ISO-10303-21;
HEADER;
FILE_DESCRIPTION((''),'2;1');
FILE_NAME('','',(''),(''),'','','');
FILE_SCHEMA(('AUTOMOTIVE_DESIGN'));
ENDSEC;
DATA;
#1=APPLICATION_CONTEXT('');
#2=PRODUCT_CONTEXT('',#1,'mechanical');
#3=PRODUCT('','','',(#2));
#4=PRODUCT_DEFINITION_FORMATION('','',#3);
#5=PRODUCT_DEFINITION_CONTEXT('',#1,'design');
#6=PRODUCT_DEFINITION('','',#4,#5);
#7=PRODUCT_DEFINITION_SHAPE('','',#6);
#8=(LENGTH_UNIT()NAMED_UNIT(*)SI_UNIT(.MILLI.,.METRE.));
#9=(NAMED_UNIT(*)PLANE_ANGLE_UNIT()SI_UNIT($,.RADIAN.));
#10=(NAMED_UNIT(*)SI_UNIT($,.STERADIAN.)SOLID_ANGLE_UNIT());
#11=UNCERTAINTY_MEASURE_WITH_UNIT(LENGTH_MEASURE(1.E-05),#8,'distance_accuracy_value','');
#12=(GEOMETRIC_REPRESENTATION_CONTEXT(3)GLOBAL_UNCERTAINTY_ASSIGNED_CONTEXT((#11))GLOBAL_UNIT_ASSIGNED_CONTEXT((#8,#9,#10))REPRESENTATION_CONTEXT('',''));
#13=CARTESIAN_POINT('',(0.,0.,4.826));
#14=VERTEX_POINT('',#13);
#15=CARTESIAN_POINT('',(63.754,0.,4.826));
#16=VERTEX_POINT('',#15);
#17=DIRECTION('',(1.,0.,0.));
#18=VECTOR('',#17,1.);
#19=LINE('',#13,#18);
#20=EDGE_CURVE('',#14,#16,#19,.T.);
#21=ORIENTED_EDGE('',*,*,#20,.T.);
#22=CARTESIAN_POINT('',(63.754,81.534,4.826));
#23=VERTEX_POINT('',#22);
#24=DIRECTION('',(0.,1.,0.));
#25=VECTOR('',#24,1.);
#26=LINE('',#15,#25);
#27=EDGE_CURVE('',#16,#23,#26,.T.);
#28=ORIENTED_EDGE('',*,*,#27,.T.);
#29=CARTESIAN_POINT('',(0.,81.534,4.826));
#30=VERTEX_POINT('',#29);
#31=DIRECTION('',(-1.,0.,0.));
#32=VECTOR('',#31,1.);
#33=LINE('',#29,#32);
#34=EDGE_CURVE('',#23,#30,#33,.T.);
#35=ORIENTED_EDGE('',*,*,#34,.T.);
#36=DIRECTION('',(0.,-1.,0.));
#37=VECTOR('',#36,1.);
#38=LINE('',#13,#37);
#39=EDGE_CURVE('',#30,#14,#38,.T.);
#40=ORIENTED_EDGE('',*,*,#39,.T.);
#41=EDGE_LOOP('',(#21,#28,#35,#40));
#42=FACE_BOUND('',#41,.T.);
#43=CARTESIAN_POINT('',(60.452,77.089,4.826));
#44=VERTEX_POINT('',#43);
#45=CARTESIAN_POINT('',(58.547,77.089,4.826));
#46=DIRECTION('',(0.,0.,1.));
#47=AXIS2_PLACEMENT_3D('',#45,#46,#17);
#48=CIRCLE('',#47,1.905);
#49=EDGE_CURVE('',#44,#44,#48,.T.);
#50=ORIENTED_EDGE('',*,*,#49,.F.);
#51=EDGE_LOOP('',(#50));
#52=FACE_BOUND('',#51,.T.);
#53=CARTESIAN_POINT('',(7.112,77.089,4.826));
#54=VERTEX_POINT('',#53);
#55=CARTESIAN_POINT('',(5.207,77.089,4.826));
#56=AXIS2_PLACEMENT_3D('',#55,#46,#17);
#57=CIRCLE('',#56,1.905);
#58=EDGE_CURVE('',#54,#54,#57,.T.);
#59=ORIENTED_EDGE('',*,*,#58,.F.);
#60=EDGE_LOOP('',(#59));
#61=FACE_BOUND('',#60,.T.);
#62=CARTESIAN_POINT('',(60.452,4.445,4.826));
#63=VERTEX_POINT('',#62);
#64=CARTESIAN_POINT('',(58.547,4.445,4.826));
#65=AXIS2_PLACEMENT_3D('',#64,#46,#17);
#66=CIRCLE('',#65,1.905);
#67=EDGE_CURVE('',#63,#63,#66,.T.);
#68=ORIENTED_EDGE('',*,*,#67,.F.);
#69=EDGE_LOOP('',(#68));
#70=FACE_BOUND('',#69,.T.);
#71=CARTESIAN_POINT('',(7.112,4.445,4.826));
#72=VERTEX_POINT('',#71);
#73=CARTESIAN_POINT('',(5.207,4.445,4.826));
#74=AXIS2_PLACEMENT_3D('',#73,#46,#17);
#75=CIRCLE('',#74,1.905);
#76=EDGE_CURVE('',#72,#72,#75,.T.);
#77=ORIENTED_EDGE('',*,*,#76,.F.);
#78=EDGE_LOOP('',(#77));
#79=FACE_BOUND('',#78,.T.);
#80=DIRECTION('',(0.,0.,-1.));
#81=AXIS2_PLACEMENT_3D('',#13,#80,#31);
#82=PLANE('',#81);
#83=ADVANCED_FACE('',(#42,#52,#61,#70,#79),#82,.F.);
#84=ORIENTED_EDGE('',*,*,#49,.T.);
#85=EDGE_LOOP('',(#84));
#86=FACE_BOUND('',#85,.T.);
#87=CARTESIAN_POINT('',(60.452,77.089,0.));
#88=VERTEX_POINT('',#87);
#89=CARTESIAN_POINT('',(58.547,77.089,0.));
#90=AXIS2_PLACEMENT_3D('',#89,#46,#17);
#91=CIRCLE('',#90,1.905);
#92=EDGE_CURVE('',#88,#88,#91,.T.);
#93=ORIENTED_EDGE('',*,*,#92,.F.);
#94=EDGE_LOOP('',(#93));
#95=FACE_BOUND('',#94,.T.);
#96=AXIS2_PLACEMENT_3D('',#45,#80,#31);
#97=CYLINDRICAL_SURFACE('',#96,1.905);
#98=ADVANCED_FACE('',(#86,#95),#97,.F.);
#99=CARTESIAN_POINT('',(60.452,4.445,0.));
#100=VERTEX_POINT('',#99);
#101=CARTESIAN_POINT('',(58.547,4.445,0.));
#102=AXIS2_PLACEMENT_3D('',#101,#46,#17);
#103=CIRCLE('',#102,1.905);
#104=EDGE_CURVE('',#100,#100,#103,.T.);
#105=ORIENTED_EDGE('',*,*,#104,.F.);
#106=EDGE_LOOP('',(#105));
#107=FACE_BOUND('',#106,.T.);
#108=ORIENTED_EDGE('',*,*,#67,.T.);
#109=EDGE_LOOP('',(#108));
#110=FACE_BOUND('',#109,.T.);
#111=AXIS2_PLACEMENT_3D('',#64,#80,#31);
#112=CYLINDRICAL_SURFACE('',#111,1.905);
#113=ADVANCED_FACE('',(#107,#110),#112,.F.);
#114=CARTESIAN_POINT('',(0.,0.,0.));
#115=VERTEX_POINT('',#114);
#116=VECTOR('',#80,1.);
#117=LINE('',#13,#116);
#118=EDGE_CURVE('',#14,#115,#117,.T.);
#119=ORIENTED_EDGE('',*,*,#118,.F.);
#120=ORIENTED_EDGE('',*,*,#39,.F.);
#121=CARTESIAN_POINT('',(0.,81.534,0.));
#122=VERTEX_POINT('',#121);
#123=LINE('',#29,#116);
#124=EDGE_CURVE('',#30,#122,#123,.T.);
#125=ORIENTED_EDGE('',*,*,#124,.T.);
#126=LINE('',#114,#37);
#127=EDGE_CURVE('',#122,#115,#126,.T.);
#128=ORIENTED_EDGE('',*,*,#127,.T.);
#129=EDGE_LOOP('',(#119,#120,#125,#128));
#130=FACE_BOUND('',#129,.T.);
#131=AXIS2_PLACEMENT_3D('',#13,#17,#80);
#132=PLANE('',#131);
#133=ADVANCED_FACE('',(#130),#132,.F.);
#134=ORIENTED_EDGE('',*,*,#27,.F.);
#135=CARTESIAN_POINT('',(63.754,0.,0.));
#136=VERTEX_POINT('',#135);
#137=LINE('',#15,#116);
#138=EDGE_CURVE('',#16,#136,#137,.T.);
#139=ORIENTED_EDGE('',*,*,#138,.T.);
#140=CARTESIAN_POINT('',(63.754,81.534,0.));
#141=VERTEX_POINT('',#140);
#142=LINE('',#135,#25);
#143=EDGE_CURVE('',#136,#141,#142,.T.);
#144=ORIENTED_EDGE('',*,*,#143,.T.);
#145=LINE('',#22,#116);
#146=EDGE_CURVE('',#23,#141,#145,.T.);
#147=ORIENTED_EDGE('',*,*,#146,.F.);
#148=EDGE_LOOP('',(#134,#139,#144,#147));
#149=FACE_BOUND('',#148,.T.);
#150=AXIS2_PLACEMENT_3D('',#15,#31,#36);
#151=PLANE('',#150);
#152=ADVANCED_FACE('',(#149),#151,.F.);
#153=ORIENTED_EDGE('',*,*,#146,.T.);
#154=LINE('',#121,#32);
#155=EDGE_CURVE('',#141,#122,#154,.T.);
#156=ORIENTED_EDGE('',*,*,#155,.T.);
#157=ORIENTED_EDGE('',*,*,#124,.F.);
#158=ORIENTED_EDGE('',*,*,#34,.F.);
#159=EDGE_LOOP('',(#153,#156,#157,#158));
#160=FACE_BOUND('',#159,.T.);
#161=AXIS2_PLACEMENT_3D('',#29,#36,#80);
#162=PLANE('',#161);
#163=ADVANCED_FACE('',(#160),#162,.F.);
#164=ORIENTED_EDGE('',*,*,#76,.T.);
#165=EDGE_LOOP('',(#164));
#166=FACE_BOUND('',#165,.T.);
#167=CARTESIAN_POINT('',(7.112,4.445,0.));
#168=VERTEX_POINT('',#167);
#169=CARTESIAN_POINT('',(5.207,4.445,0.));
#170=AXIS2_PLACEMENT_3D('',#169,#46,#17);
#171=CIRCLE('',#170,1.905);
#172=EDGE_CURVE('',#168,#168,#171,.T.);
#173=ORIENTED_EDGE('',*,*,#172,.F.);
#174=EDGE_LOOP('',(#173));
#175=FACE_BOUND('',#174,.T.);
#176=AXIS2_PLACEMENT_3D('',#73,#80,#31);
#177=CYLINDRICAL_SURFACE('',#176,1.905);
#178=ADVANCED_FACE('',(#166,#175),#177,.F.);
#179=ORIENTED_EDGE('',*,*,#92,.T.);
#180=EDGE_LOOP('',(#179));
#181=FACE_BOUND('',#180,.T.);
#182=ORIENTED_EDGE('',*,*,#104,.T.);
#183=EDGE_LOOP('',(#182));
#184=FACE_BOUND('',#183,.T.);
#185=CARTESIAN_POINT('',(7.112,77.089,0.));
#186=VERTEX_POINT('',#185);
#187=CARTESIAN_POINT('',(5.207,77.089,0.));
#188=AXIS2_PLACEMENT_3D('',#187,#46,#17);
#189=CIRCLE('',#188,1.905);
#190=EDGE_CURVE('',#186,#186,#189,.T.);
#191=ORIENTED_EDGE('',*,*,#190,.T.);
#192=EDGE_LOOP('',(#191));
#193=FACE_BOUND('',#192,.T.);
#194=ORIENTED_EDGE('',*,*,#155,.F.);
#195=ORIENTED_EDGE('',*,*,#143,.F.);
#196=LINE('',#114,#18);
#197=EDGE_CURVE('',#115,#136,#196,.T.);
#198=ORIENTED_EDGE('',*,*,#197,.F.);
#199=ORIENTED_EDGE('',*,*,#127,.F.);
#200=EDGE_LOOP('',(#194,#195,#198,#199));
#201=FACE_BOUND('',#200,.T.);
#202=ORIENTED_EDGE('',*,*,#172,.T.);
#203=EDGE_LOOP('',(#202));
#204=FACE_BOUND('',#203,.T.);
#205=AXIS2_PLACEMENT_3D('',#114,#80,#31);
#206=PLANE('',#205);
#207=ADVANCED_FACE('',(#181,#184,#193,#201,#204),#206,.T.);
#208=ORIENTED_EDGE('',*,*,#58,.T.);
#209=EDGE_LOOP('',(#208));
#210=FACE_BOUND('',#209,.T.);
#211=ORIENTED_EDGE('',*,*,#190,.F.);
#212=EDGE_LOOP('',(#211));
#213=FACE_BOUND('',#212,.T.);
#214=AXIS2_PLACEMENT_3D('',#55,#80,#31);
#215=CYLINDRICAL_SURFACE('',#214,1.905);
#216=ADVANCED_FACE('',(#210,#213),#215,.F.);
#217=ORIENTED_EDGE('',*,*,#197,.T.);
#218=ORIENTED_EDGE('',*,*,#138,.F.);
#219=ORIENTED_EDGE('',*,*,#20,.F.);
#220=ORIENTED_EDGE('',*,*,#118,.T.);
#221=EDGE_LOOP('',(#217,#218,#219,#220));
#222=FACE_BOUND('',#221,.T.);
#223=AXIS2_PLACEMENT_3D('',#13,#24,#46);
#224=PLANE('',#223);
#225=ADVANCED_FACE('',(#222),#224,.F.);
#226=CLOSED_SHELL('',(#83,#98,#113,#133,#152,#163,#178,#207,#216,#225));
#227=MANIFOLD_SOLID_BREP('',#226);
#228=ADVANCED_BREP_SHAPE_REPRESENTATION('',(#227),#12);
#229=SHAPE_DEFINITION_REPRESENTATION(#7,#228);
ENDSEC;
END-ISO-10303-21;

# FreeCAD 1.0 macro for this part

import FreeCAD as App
import Part
import Sketcher
from FreeCAD import Vector
Q = App.Units.Quantity

doc = App.newDocument("Part")
params = doc.addObject("Spreadsheet::Sheet", "Params")
for row, (alias, value) in enumerate([
    ("sketch1_diameter", "0.15 in"),
    ("sketch1_width", "2.51 in"),
    ("sketch1_height", "3.21 in"),
    ("pad1_length", "0.19 in"),
], start=1):
    params.set(f"A{row}", alias)
    params.set(f"B{row}", "=" + value)
    params.setAlias(f"B{row}", alias)

body = doc.addObject("PartDesign::Body", "Body")

# Sketch on XY plane
sketch1 = body.newObject("Sketcher::SketchObject", "Sketch")
sketch1.AttachmentSupport = (doc.getObject("XY_Plane"), [""])
sketch1.MapMode = "FlatFace"
sketch1.addGeometry([
    Part.LineSegment(Vector(0, 81.5, 0), Vector(0, 0, 0)),  # 0
    Part.LineSegment(Vector(0, 0, 0), Vector(63.8, 0, 0)),  # 1
    Part.LineSegment(Vector(63.8, 0, 0), Vector(63.8, 81.5, 0)),  # 2
    Part.LineSegment(Vector(63.8, 81.5, 0), Vector(0, 81.5, 0)),  # 3
    Part.Circle(Vector(5.2, 4.4, 0), Vector(0, 0, 1), 1.9),  # 4
    Part.Circle(Vector(58.5, 4.4, 0), Vector(0, 0, 1), 1.9),  # 5
    Part.Circle(Vector(5.2, 77.1, 0), Vector(0, 0, 1), 1.9),  # 6
    Part.Circle(Vector(58.5, 77.1, 0), Vector(0, 0, 1), 1.9),  # 7
], False)
sketch1.addConstraint([
    Sketcher.Constraint("Coincident", 0, 2, 1, 1),
    Sketcher.Constraint("Coincident", 1, 2, 2, 1),
    Sketcher.Constraint("Coincident", 2, 2, 3, 1),
    Sketcher.Constraint("Coincident", 3, 2, 0, 1),
    Sketcher.Constraint("Vertical", 0),
    Sketcher.Constraint("Horizontal", 1),
    Sketcher.Constraint("Vertical", 2),
    Sketcher.Constraint("Horizontal", 3),
    Sketcher.Constraint("Coincident", 0, 2, -1, 1),
    Sketcher.Constraint("Equal", 4, 5),
    Sketcher.Constraint("Equal", 5, 6),
    Sketcher.Constraint("Equal", 6, 7),
    Sketcher.Constraint("Horizontal", 4, 3, 5, 3),
    Sketcher.Constraint("Horizontal", 6, 3, 7, 3),
    Sketcher.Constraint("Vertical", 4, 3, 6, 3),
    Sketcher.Constraint("Vertical", 5, 3, 7, 3),
    Sketcher.Constraint("Diameter", 4, Q("0.15 in")),
    Sketcher.Constraint("DistanceX", 1, 1, 1, 2, Q("2.51 in")),
    Sketcher.Constraint("DistanceY", 0, 2, 0, 1, Q("3.21 in")),
    Sketcher.Constraint("DistanceX", 4, 3, 5, 3, Q("2.1 in")),
    Sketcher.Constraint("DistanceY", 4, 3, 6, 3, Q("2.86 in")),
    Sketcher.Constraint("DistanceX", -1, 1, 4, 3, Q("0.205 in")),
    Sketcher.Constraint("DistanceY", -1, 1, 4, 3, Q("0.175 in")),
])
sketch1.setExpression("Constraints[16]", "Params.sketch1_diameter")
sketch1.setExpression("Constraints[17]", "Params.sketch1_width")
sketch1.setExpression("Constraints[18]", "Params.sketch1_height")
pad1 = body.newObject("PartDesign::Pad", "Pad")
pad1.Profile = sketch1
pad1.setExpression("Length", "Params.pad1_length")

doc.recompute()
